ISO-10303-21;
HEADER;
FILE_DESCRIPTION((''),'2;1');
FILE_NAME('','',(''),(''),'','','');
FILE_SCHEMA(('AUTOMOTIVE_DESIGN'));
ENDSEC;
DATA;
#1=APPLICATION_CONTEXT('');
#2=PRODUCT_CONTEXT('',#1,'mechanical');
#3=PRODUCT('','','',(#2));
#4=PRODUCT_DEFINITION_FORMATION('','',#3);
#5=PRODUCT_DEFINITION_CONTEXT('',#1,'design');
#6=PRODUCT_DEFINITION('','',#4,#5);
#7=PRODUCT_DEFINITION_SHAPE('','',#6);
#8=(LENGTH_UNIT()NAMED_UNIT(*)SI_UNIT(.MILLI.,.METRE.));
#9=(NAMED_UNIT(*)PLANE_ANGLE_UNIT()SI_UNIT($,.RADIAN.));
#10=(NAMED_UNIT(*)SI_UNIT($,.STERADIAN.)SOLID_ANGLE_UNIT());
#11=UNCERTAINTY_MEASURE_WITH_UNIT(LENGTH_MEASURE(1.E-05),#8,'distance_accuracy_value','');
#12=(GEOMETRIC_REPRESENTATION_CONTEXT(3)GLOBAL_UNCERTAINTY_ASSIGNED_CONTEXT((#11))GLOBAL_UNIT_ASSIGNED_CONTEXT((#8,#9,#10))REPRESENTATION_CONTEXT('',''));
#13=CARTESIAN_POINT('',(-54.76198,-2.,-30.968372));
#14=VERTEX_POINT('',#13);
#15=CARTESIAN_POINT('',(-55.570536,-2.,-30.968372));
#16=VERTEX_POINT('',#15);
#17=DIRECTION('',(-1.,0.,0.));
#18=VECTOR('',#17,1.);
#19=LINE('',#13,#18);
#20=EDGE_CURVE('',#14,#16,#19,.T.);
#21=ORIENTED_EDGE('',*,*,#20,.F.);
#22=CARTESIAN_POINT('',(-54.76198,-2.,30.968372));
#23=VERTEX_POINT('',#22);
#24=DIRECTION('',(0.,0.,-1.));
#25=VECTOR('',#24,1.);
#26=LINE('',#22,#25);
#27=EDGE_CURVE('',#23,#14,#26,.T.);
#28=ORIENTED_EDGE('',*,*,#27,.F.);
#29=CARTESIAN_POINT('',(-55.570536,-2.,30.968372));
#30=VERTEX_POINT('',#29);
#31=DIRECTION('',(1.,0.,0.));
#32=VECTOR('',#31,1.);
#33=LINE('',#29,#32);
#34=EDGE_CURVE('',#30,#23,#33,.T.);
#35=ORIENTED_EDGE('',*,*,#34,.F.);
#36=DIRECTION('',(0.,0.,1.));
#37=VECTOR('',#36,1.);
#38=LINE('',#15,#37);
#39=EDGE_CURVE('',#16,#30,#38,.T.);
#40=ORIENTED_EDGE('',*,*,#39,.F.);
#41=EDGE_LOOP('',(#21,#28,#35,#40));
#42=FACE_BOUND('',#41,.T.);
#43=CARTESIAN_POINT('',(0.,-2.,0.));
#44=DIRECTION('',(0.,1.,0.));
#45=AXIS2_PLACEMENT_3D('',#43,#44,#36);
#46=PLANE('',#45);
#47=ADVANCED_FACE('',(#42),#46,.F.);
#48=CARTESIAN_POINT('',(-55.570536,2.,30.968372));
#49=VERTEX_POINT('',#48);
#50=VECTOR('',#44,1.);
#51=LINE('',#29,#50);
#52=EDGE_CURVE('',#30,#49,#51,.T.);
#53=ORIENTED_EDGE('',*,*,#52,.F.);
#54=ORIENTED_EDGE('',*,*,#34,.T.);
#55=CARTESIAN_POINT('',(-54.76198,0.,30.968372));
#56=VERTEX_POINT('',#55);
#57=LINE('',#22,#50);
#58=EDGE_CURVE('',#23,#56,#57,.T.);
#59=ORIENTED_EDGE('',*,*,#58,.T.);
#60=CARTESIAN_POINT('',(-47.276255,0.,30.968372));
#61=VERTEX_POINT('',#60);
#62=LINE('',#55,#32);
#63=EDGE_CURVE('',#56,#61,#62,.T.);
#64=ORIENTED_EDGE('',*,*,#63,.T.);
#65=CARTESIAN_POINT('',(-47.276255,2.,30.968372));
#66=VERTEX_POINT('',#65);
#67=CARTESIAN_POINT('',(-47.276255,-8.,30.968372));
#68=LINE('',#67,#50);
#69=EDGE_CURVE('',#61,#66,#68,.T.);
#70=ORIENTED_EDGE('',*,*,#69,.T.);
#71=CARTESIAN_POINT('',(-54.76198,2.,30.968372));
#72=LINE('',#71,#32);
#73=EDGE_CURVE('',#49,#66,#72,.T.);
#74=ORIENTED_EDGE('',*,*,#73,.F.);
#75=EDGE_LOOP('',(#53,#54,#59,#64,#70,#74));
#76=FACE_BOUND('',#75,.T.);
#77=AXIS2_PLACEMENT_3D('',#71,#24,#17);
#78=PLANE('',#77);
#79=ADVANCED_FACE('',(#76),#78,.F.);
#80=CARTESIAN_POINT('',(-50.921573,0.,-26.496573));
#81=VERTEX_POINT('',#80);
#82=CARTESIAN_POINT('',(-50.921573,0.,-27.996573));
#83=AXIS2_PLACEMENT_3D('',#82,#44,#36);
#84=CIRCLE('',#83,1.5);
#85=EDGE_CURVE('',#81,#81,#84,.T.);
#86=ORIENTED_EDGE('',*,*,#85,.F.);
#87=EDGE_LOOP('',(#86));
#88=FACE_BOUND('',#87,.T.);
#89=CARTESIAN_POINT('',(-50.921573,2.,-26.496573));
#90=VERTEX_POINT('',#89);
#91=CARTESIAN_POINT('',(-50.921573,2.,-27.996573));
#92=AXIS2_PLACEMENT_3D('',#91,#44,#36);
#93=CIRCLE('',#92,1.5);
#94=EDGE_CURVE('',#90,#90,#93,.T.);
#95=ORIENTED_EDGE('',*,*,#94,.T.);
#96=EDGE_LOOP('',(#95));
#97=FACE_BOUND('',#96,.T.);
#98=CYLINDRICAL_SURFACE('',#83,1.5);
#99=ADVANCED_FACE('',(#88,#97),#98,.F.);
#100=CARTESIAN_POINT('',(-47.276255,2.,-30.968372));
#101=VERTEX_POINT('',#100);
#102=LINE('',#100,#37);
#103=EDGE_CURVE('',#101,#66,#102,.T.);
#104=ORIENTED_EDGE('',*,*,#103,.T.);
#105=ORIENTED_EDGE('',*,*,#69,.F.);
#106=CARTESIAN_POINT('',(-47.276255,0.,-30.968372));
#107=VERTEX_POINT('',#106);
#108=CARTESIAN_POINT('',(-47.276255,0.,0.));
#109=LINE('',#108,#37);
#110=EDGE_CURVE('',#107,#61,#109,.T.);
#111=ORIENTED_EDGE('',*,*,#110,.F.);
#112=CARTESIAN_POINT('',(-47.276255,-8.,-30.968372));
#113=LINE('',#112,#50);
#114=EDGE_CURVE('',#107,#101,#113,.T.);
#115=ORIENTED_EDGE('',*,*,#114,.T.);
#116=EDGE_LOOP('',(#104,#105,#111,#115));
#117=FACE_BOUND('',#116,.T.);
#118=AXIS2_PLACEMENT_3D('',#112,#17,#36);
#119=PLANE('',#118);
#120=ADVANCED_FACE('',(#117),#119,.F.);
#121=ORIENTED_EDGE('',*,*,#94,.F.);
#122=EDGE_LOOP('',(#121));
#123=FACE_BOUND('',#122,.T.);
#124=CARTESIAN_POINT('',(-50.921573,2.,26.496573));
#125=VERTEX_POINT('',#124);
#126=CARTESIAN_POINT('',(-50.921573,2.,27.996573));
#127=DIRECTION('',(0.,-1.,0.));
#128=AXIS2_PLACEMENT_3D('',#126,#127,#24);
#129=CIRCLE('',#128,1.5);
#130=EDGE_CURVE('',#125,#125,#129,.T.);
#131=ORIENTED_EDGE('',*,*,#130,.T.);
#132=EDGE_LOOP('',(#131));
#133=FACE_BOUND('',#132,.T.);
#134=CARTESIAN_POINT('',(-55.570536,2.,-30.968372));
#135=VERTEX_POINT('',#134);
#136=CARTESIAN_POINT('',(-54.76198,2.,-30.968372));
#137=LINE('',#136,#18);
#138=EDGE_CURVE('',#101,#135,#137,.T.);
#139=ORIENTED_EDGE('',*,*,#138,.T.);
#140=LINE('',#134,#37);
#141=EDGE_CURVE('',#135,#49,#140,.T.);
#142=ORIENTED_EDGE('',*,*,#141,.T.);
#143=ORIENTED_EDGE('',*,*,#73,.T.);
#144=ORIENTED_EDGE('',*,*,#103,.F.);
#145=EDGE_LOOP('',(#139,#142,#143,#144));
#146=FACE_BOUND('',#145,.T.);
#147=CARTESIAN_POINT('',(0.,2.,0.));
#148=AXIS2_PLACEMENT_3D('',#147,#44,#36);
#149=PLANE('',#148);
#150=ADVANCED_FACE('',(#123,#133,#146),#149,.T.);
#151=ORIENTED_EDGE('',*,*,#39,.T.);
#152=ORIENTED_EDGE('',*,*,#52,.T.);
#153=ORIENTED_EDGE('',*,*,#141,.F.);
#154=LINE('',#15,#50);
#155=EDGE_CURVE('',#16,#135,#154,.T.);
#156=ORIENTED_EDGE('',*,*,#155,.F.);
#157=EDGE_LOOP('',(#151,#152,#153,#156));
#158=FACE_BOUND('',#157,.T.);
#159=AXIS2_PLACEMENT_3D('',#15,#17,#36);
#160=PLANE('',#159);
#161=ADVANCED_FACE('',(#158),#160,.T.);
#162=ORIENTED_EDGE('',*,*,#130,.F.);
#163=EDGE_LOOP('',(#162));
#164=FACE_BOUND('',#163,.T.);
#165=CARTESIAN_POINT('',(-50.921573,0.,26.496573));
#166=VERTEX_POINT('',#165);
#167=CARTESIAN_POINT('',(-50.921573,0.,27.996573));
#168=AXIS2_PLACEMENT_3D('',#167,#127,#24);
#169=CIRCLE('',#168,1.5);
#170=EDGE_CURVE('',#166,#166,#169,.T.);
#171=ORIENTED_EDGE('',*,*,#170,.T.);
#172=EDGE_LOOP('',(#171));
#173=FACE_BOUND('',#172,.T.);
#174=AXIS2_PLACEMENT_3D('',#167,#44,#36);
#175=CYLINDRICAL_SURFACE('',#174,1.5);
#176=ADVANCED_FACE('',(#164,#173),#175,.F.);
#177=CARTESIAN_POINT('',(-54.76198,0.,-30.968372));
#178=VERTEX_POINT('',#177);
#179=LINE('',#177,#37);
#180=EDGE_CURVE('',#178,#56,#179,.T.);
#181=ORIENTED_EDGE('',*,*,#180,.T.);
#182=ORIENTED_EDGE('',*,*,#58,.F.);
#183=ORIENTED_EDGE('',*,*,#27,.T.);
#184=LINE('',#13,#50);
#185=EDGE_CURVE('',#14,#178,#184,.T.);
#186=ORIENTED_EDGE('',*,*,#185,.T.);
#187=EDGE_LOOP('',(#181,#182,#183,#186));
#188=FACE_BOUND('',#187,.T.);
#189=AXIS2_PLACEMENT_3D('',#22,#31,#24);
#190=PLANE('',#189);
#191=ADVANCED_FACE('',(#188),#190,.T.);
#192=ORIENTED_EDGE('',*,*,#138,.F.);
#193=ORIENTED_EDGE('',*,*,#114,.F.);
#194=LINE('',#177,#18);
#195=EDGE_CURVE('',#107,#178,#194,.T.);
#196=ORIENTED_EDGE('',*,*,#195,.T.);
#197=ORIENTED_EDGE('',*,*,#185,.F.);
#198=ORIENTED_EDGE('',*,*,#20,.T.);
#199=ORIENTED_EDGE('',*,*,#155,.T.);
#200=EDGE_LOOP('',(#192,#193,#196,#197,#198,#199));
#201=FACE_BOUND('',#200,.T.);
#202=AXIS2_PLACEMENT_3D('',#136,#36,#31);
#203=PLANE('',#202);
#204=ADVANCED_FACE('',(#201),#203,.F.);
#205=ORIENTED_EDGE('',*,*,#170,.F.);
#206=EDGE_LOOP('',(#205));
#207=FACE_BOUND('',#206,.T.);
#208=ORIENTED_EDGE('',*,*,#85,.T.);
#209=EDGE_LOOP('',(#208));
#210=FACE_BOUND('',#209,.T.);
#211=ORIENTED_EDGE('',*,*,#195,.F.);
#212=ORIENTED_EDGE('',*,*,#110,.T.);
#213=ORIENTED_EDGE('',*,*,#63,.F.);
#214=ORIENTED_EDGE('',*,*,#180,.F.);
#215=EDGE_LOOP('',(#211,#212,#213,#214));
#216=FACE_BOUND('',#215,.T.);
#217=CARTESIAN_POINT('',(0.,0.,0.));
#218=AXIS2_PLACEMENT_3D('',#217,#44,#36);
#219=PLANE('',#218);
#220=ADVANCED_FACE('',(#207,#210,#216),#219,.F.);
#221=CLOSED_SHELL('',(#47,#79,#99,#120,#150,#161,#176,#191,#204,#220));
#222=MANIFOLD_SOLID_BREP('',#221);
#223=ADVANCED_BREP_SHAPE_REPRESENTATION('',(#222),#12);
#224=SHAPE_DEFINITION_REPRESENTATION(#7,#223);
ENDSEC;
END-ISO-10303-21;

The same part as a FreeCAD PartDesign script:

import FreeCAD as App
import Part
import Sketcher


def add_polygon(sketch, points):
    """Adds a closed chain of lines whose ends are joined by coincident constraints."""
    first, n = sketch.GeometryCount, len(points)
    for a, b in zip(points, points[1:] + points[:1]):
        sketch.addGeometry(Part.LineSegment(App.Vector(*a, 0), App.Vector(*b, 0)), False)
    for i in range(n):
        sketch.addConstraint(Sketcher.Constraint("Coincident", first + i, 2, first + (i + 1) % n, 1))

doc = App.newDocument("Part")
body = doc.addObject("PartDesign::Body", "Body")

sketch1 = body.newObject("Sketcher::SketchObject", "Sketch")
sketch1.AttachmentSupport = (doc.getObject("XZ_Plane"), [""])
sketch1.MapMode = "FlatFace"
add_polygon(sketch1, [(-55, -31), (-55, 31), (54, 31), (54, -31)])
sketch1.addConstraint(Sketcher.Constraint("Vertical", 0))
sketch1.addConstraint(Sketcher.Constraint("Horizontal", 1))
sketch1.addConstraint(Sketcher.Constraint("Vertical", 2))
sketch1.addConstraint(Sketcher.Constraint("Horizontal", 3))
sketch1.addConstraint(Sketcher.Constraint("DistanceX", -1, 1, 1, 2, 54.0))
sketch1.addConstraint(Sketcher.Constraint("DistanceX", 1, 1, 1, 2, 108.76198))
sketch1.addConstraint(Sketcher.Constraint("DistanceY", 0, 1, 0, 2, 61.936744))
sketch1.addConstraint(Sketcher.Constraint("DistanceY", -1, 1, 0, 2, 30.968372))
pad1 = body.newObject("PartDesign::Pad", "Pad")
pad1.Profile = sketch1
pad1.Length = 2
pad1.Reversed = True

sketch2 = body.newObject("Sketcher::SketchObject", "Sketch001")
sketch2.AttachmentSupport = (doc.getObject("XZ_Plane"), [""])
sketch2.MapMode = "FlatFace"
sketch2.AttachmentOffset = App.Placement(App.Vector(0, 0, -2), App.Rotation())
sketch2.addGeometry(Part.Circle(App.Vector(-50.9, -28, 0), App.Vector(0, 0, 1), 1.5), False)
sketch2.addConstraint(Sketcher.Constraint("Diameter", 0, 3.0))
sketch2.addConstraint(Sketcher.Constraint("DistanceX", 0, 3, -1, 1, 50.921573))
sketch2.addConstraint(Sketcher.Constraint("DistanceY", 0, 3, -1, 1, 27.996573))
pocket1 = body.newObject("PartDesign::Pocket", "Pocket")
pocket1.Profile = sketch2
pocket1.Type = "ThroughAll"
pocket1.Reversed = True
doc.recompute()

mirrored = body.newObject("PartDesign::Mirrored", "Mirrored")
mirrored.Originals = [pocket1]
mirrored.MirrorPlane = (doc.getObject("XY_Plane"), [""])
body.Tip = mirrored
doc.recompute()

datumplane = body.newObject("PartDesign::Plane", "DatumPlane")
datumplane.AttachmentSupport = (doc.getObject("YZ_Plane"), [""])
datumplane.MapMode = "FlatFace"
datumplane.AttachmentOffset = App.Placement(App.Vector(0, 0, -0.38099), App.Rotation())
mirrored2 = body.newObject("PartDesign::Mirrored", "Mirrored001")
mirrored2.Originals = [pocket1]
mirrored2.MirrorPlane = (datumplane, [""])
body.Tip = mirrored2

sketch3 = body.newObject("Sketcher::SketchObject", "Sketch002")
sketch3.AttachmentSupport = (doc.getObject("XZ_Plane"), [""])
sketch3.MapMode = "FlatFace"
sketch3.AttachmentOffset = App.Placement(App.Vector(0, 0, -2), App.Rotation())
sketch3.addGeometry(Part.Circle(App.Vector(50.2, 28, 0), App.Vector(0, 0, 1), 1.5), False)
sketch3.addConstraint(Sketcher.Constraint("Diameter", 0, 3.0))
sketch3.addConstraint(Sketcher.Constraint("DistanceX", -1, 1, 0, 3, 50.159593))
sketch3.addConstraint(Sketcher.Constraint("DistanceY", -1, 1, 0, 3, 27.996573))
pocket2 = body.newObject("PartDesign::Pocket", "Pocket001")
pocket2.Profile = sketch3
pocket2.Type = "ThroughAll"
pocket2.Reversed = True

sketch4 = body.newObject("Sketcher::SketchObject", "Sketch003")
sketch4.AttachmentSupport = (doc.getObject("XZ_Plane"), [""])
sketch4.MapMode = "FlatFace"
sketch4.AttachmentOffset = App.Placement(App.Vector(0, 0, -2), App.Rotation())
add_polygon(sketch4, [(-47, -28), (-47, 28), (47, 28), (47, -28)])
sketch4.addConstraint(Sketcher.Constraint("Vertical", 0))
sketch4.addConstraint(Sketcher.Constraint("Horizontal", 1))
sketch4.addConstraint(Sketcher.Constraint("Vertical", 2))
sketch4.addConstraint(Sketcher.Constraint("Horizontal", 3))
sketch4.addConstraint(Sketcher.Constraint("Symmetric", 0, 2, 2, 2, -1, 1))
sketch4.addConstraint(Sketcher.Constraint("DistanceY", 0, 1, 0, 2, 56.555499))
sketch4.addConstraint(Sketcher.Constraint("DistanceX", 1, 1, 1, 2, 94.02487))
pocket3 = body.newObject("PartDesign::Pocket", "Pocket002")
pocket3.Profile = sketch4
pocket3.Type = "ThroughAll"
pocket3.Reversed = True

sketch5 = body.newObject("Sketcher::SketchObject", "Sketch004")
sketch5.AttachmentSupport = (doc.getObject("XZ_Plane"), [""])
sketch5.MapMode = "FlatFace"
sketch5.AttachmentOffset = App.Placement(App.Vector(0, 0, -2), App.Rotation())
add_polygon(sketch5, [(-47, -31), (-47, 31), (54, 31), (54, -31)])
sketch5.addConstraint(Sketcher.Constraint("Vertical", 0))
sketch5.addConstraint(Sketcher.Constraint("Horizontal", 1))
sketch5.addConstraint(Sketcher.Constraint("Vertical", 2))
sketch5.addConstraint(Sketcher.Constraint("Horizontal", 3))
sketch5.addConstraint(Sketcher.Constraint("DistanceX", -1, 1, 1, 2, 54.0))
sketch5.addConstraint(Sketcher.Constraint("DistanceX", 1, 1, 1, 2, 101.276255))
sketch5.addConstraint(Sketcher.Constraint("DistanceY", 0, 1, 0, 2, 61.936744))
sketch5.addConstraint(Sketcher.Constraint("DistanceY", -1, 1, 0, 2, 30.968372))
pocket4 = body.newObject("PartDesign::Pocket", "Pocket003")
pocket4.Profile = sketch5
pocket4.Length = 10
pocket4.Reversed = True

sketch6 = body.newObject("Sketcher::SketchObject", "Sketch005")
sketch6.AttachmentSupport = (doc.getObject("XZ_Plane"), [""])
sketch6.MapMode = "FlatFace"
sketch6.AttachmentOffset = App.Placement(App.Vector(0, 0, -2), App.Rotation())
add_polygon(sketch6, [(-55.6, -31), (-55.6, 31), (-54.8, 31), (-54.8, -31)])
sketch6.addConstraint(Sketcher.Constraint("Vertical", 0))
sketch6.addConstraint(Sketcher.Constraint("Horizontal", 1))
sketch6.addConstraint(Sketcher.Constraint("Vertical", 2))
sketch6.addConstraint(Sketcher.Constraint("Horizontal", 3))
sketch6.addConstraint(Sketcher.Constraint("DistanceX", 1, 1, 1, 2, 0.808556))
sketch6.addConstraint(Sketcher.Constraint("DistanceY", 0, 1, 0, 2, 61.936744))
sketch6.addConstraint(Sketcher.Constraint("DistanceX", 1, 2, -1, 1, 54.76198))
sketch6.addConstraint(Sketcher.Constraint("DistanceY", -1, 1, 0, 2, 30.968372))
pad2 = body.newObject("PartDesign::Pad", "Pad001")
pad2.Profile = sketch6
pad2.Length = 4

doc.recompute()
